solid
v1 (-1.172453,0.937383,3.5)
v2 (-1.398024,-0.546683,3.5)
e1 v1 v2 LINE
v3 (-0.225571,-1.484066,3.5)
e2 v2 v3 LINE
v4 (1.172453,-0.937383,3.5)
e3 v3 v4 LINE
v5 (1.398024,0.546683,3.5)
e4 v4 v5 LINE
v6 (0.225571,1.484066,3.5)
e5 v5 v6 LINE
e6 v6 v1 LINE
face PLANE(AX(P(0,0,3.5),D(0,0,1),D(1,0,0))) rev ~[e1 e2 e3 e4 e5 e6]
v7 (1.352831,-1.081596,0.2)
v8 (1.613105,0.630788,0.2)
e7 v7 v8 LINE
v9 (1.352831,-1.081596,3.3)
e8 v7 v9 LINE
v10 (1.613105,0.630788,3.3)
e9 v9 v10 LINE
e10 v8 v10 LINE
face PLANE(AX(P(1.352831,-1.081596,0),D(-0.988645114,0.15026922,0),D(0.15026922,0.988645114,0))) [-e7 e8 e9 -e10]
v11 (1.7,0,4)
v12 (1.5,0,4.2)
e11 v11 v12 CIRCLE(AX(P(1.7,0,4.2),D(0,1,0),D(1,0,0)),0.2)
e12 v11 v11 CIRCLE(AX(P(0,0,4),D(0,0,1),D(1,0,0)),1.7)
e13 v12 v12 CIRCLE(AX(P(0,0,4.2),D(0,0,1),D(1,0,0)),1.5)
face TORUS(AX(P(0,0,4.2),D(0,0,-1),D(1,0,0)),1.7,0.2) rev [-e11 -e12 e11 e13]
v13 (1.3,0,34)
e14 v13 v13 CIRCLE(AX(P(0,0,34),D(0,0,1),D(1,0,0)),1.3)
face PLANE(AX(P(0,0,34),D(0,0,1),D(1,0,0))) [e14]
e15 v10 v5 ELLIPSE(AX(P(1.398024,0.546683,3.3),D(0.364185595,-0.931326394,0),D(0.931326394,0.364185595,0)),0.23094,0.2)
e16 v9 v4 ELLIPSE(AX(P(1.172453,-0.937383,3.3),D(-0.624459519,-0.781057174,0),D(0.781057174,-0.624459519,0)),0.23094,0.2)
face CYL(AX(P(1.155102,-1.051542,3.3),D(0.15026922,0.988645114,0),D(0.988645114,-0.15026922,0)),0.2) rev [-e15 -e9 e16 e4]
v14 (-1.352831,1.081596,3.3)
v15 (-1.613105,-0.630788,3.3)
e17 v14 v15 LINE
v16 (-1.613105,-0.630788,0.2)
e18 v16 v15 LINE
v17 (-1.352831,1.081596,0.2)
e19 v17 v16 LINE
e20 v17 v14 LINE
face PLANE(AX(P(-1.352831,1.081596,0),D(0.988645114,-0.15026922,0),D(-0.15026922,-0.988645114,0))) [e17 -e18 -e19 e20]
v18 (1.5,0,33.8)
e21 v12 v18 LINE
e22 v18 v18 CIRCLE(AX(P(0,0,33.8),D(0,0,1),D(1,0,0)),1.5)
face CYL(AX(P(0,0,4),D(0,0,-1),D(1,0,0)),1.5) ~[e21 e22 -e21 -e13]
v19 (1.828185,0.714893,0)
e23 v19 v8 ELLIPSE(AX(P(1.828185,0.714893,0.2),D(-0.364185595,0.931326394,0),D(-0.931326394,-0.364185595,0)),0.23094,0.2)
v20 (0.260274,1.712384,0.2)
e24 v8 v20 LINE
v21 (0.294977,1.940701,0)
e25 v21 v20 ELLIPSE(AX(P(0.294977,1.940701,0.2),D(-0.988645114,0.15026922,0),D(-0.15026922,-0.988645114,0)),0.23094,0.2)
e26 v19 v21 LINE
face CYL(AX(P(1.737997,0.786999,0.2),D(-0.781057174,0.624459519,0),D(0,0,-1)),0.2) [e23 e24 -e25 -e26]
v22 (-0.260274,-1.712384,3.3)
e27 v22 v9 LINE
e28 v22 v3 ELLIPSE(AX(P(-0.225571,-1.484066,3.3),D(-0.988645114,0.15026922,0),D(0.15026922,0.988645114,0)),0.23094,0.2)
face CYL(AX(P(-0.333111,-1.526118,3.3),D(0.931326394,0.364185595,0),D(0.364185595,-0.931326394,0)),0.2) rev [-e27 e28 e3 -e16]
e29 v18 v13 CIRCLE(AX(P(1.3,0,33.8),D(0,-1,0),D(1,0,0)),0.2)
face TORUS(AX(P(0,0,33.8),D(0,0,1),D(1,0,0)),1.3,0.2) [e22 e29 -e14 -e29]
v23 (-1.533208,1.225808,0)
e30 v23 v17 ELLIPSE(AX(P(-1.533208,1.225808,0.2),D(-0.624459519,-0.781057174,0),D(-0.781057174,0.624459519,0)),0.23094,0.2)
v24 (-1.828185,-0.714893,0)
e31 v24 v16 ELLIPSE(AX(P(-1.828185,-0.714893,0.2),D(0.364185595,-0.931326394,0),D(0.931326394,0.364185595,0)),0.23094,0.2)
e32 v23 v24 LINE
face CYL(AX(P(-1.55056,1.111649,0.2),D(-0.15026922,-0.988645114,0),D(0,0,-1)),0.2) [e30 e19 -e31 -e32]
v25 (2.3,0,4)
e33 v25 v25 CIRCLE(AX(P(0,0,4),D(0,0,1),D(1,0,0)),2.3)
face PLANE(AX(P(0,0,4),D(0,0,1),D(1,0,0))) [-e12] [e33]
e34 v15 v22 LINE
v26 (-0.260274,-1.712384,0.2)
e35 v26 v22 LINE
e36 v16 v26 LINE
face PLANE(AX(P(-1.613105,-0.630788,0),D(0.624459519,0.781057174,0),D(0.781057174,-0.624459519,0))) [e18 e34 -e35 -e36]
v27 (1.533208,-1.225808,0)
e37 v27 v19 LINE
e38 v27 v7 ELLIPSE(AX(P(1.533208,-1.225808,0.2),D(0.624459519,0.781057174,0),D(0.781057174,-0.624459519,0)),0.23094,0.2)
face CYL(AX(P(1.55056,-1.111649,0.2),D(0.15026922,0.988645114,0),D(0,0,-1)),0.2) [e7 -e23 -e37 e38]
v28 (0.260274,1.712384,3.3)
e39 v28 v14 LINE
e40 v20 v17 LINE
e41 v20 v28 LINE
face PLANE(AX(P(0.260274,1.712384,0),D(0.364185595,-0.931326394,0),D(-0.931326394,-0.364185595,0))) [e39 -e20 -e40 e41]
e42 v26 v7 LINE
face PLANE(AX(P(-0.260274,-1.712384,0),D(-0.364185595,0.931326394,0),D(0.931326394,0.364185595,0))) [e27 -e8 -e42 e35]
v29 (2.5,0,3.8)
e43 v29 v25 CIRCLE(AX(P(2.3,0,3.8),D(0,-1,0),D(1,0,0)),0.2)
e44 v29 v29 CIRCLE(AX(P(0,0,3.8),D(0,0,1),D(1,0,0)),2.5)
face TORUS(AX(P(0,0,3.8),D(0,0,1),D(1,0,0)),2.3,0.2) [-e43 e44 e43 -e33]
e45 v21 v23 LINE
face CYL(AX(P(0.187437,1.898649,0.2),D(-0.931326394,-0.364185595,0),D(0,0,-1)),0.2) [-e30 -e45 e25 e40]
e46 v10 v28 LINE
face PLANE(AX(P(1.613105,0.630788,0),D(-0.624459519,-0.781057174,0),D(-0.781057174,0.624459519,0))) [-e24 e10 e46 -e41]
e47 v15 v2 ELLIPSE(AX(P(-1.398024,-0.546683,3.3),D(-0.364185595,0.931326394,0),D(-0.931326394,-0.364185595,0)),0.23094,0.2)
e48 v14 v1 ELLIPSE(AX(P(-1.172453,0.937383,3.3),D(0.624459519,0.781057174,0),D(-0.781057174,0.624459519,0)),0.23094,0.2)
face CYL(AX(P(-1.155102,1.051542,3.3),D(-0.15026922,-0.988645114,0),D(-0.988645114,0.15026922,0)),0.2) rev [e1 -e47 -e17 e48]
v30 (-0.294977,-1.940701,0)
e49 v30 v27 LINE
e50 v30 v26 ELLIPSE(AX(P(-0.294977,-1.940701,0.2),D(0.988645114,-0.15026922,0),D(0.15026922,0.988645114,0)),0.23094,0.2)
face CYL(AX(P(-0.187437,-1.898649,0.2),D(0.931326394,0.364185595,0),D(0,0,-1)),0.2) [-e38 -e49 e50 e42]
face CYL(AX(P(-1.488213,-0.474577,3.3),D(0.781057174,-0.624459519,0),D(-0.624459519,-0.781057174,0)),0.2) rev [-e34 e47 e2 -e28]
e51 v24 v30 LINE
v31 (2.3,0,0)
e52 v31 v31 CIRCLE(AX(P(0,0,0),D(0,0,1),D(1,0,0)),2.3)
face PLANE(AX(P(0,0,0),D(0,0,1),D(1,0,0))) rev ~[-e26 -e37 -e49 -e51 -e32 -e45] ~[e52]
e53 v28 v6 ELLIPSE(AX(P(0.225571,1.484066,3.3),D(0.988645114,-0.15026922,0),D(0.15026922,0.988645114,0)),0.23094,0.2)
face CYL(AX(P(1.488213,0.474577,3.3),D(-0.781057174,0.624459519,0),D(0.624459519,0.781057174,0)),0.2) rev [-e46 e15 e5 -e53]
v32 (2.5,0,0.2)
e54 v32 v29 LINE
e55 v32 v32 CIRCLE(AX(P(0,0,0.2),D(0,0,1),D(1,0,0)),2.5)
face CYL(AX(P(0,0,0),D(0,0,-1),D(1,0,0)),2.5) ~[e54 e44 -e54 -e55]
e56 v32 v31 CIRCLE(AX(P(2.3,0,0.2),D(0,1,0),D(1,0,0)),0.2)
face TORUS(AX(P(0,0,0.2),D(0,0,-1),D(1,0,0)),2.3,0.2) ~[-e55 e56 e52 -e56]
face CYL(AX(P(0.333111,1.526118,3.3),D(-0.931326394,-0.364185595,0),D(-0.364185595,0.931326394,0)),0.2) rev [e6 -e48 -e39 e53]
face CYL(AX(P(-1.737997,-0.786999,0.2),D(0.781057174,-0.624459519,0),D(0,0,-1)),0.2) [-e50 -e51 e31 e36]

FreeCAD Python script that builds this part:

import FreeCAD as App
import Part
import Sketcher
from FreeCAD import Vector


def edges_at(feature, points):
    """Names of the edges that pass closest to the given points."""
    edges = feature.Shape.Edges
    near = lambda p: min(range(len(edges)), key=lambda i: edges[i].distToShape(Part.Vertex(*p))[0])
    return sorted({f"Edge{near(p) + 1}" for p in points})


def add_polygon(sketch, points):
    """Adds a closed chain of lines whose ends are joined by coincident constraints."""
    first, n = sketch.GeometryCount, len(points)
    for a, b in zip(points, points[1:] + points[:1]):
        sketch.addGeometry(Part.LineSegment(App.Vector(*a, 0), App.Vector(*b, 0)), False)
    for i in range(n):
        sketch.addConstraint(Sketcher.Constraint("Coincident", first + i, 2, first + (i + 1) % n, 1))

doc = App.newDocument("Part")
body = doc.addObject("PartDesign::Body", "Body")

sketch1 = doc.addObject("Sketcher::SketchObject", "Sketch")
body.addObject(sketch1)
sketch1.AttachmentSupport = (doc.XY_Plane, [""])
sketch1.MapMode = "FlatFace"
sketch1.addGeometry(Part.Circle(Vector(0, 0, 0), Vector(0, 0, 1), 2.5), False)
sketch1.addConstraint(Sketcher.Constraint("Coincident", 0, 3, -1, 1))
sketch1.addConstraint(Sketcher.Constraint("Diameter", 0, 5.0))
pad1 = doc.addObject("PartDesign::Pad", "Pad")
body.addObject(pad1)
pad1.Profile = sketch1
pad1.Length = 4

sketch2 = doc.addObject("Sketcher::SketchObject", "Sketch001")
body.addObject(sketch2)
sketch2.AttachmentSupport = (doc.XY_Plane, [""])
sketch2.MapMode = "FlatFace"
add_polygon(sketch2, [(1.6, 0.6), (0.3, 1.7), (-1.4, 1.1), (-1.6, -0.6), (-0.3, -1.7), (1.4, -1.1)])
sketch2.addConstraint(Sketcher.Constraint("Symmetric", 0, 2, 3, 2, -1, 1))
sketch2.addConstraint(Sketcher.Constraint("Symmetric", 1, 2, 4, 2, -1, 1))
sketch2.addConstraint(Sketcher.Constraint("Symmetric", 2, 2, 5, 2, -1, 1))
sketch2.addConstraint(Sketcher.Constraint("Equal", 0, 1))
sketch2.addConstraint(Sketcher.Constraint("Equal", 1, 2))
sketch2.addConstraint(Sketcher.Constraint("Distance", 0, 1.732051))
sketch2.addConstraint(Sketcher.Constraint("DistanceX", 1, 2, -1, 1, 1.352831))
sketch2.addConstraint(Sketcher.Constraint("DistanceX", 2, 2, 0, 2, 1.873379))
sketch2.addConstraint(Sketcher.Constraint("DistanceY", 2, 2, 0, 2, 2.343172))
pocket1 = doc.addObject("PartDesign::Pocket", "Pocket")
body.addObject(pocket1)
pocket1.Profile = sketch2
pocket1.Length = 3.5
pocket1.Reversed = True

sketch3 = doc.addObject("Sketcher::SketchObject", "Sketch002")
body.addObject(sketch3)
sketch3.AttachmentSupport = (doc.XY_Plane, [""])
sketch3.MapMode = "FlatFace"
sketch3.AttachmentOffset = App.Placement(Vector(0, 0, 4), App.Rotation())
sketch3.addGeometry(Part.Circle(Vector(0, 0, 0), Vector(0, 0, 1), 1.5), False)
sketch3.addConstraint(Sketcher.Constraint("Coincident", 0, 3, -1, 1))
sketch3.addConstraint(Sketcher.Constraint("Diameter", 0, 3.0))
pad2 = doc.addObject("PartDesign::Pad", "Pad001")
body.addObject(pad2)
pad2.Profile = sketch3
pad2.Length = 30
doc.recompute()

fillet = doc.addObject("PartDesign::Fillet", "Fillet")
body.addObject(fillet)
fillet.Base = (pad2, edges_at(pad2, [
    (-1.5, 0, 4),
    (-1.5, 0, 34),
    (2.5, 0, 2),
    (-2.5, 0, 0),
    (-2.5, 0, 4),
    (-0.546, 1.397, 0),
    (0.546, -1.397, 3.5),
    (1.483, -0.225, 3.5),
    (0.937, 1.172, 3.5),
    (-0.546, 1.397, 3.5),
    (-1.483, 0.225, 3.5),
    (-0.937, -1.172, 3.5),
    (0.546, -1.397, 0),
    (-0.937, -1.172, 0),
    (-1.483, 0.225, 0),
    (0.937, 1.172, 0),
    (1.483, -0.225, 0),
]))
fillet.Radius = 0.2

doc.recompute()
